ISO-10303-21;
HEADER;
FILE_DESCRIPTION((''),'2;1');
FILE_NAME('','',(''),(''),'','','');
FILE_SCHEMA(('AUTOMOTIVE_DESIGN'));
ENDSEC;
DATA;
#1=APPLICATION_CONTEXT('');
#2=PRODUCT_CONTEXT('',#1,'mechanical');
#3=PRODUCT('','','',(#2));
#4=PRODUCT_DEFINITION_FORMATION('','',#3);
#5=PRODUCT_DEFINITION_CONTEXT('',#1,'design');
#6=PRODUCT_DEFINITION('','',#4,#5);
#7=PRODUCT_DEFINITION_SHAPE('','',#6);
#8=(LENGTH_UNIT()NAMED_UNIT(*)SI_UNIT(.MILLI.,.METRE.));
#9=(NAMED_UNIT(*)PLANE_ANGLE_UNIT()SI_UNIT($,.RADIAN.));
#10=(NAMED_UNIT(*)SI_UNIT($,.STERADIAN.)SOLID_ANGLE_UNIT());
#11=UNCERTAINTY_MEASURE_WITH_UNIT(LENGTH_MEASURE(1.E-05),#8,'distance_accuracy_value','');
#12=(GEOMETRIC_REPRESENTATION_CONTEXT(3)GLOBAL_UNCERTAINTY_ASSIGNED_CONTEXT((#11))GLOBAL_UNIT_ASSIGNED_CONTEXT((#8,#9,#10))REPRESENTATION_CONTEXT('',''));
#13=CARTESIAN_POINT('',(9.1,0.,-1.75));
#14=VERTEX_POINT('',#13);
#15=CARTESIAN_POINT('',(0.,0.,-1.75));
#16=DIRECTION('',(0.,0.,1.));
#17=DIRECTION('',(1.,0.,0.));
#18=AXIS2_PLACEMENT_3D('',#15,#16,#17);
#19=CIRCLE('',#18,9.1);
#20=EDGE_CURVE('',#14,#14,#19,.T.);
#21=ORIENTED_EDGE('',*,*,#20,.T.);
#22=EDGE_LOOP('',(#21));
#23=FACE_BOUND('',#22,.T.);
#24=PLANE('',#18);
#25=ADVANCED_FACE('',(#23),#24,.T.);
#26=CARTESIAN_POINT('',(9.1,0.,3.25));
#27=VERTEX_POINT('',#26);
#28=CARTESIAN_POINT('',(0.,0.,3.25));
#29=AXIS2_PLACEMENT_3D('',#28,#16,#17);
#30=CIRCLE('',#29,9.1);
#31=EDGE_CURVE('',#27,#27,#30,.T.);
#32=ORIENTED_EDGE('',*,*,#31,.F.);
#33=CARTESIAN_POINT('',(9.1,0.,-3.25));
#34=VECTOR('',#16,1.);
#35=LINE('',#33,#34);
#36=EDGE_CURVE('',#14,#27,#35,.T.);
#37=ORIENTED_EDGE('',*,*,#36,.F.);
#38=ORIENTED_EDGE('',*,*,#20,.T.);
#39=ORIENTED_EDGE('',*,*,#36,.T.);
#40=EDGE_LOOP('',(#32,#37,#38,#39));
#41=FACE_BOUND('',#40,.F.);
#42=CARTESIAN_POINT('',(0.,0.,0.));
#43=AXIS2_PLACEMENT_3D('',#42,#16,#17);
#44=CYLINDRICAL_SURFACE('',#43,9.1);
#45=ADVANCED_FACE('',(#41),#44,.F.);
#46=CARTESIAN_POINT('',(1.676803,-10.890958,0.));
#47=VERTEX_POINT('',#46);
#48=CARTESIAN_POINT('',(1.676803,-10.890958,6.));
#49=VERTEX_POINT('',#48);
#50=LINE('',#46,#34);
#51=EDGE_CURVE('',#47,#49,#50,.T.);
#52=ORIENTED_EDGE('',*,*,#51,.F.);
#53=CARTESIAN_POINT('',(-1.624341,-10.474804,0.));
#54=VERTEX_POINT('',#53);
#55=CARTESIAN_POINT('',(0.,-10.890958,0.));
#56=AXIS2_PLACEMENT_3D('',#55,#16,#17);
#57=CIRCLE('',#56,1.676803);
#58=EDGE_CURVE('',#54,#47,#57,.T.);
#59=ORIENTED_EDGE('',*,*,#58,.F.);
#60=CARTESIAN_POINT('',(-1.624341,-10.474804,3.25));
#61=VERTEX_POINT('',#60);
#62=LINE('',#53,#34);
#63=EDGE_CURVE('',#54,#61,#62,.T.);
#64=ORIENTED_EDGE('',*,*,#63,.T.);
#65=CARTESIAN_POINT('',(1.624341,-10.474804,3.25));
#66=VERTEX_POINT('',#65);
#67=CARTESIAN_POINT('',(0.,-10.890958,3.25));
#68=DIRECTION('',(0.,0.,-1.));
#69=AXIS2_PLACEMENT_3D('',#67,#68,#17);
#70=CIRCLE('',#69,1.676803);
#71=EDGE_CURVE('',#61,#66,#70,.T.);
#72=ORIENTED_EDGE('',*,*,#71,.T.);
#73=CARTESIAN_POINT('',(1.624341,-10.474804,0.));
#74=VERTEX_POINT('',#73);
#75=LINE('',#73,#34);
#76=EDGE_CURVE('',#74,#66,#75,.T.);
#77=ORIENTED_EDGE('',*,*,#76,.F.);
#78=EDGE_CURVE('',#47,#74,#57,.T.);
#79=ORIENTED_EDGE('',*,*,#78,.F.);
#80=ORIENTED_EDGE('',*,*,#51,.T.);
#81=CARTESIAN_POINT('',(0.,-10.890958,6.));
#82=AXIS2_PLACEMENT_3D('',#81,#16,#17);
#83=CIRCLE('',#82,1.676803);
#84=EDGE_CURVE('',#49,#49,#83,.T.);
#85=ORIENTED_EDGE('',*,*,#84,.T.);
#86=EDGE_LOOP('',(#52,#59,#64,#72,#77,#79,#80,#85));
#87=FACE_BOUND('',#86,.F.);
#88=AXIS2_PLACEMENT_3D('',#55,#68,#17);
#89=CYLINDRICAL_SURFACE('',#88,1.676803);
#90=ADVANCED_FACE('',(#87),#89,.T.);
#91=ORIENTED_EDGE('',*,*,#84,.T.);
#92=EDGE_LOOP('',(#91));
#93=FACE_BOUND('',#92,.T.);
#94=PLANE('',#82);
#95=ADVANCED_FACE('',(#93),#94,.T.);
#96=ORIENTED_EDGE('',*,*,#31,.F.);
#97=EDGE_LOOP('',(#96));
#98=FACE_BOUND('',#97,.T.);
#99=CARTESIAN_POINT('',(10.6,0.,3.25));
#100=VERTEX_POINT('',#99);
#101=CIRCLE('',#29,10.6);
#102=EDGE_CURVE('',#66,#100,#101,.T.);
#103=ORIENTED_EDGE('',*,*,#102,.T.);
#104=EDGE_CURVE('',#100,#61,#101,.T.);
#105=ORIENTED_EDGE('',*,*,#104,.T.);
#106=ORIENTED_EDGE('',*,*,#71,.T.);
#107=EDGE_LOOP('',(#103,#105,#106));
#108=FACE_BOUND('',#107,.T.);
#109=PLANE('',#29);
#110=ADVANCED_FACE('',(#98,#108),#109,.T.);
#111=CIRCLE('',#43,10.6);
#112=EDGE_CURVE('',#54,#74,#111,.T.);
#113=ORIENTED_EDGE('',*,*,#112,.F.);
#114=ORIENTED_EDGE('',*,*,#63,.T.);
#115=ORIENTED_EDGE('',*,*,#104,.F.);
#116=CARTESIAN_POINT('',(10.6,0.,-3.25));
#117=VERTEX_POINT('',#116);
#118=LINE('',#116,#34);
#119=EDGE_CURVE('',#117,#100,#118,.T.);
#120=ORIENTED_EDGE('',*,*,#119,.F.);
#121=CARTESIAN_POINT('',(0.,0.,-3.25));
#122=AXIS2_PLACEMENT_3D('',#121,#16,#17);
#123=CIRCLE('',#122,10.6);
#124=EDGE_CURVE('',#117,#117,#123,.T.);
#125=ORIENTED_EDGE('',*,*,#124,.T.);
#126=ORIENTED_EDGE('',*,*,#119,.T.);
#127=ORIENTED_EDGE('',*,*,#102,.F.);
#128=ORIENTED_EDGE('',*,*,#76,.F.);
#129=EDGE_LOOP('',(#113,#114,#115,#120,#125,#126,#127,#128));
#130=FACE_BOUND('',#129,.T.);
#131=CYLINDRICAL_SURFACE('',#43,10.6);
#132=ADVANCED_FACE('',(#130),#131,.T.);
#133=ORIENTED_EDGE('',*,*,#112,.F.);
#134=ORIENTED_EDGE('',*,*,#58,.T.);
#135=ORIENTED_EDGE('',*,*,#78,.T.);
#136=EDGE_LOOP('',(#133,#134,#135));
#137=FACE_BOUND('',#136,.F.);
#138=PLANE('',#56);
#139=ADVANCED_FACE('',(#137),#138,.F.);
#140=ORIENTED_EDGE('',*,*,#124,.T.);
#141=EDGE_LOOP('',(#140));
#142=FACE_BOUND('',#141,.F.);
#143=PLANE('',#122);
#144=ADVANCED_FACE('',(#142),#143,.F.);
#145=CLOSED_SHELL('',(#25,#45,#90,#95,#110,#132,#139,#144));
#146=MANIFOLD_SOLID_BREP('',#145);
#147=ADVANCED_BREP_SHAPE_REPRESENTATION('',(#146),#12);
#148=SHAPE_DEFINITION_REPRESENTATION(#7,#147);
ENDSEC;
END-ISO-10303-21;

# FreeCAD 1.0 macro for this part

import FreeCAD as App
import Part
import Sketcher
from FreeCAD import Vector


def faces_at(feature, points):
    """Names of the faces that lie closest to the given points."""
    faces = feature.Shape.Faces
    near = lambda p: min(range(len(faces)), key=lambda i: faces[i].distToShape(Part.Vertex(*p))[0])
    return sorted({f"Face{near(p) + 1}" for p in points})

doc = App.newDocument("Part")
body = doc.addObject("PartDesign::Body", "Body")

# Sketch on XY plane
sketch1 = doc.addObject("Sketcher::SketchObject", "Sketch")
body.addObject(sketch1)
sketch1.AttachmentSupport = (doc.XY_Plane, [""])
sketch1.MapMode = "FlatFace"
sketch1.addGeometry(Part.Circle(Vector(0, 0, 0), Vector(0, 0, 1), 11), False)
sketch1.addConstraint([
    Sketcher.Constraint("Coincident", 0, 3, -1, 1),
    Sketcher.Constraint("Diameter", 0, 21.2),
])
pad1 = doc.addObject("PartDesign::Pad", "Pad")
body.addObject(pad1)
pad1.Profile = sketch1
pad1.Length = 6.5
pad1.Midplane = True
doc.recompute()

thickness = doc.addObject("PartDesign::Thickness", "Thickness")
body.addObject(thickness)
thickness.Base = (pad1, faces_at(pad1, [(0, 0, 3.25)]))
thickness.Value = 1.5
thickness.Reversed = True
thickness.Join = "Arc"

# Sketch on XY plane
sketch2 = doc.addObject("Sketcher::SketchObject", "Sketch001")
body.addObject(sketch2)
sketch2.AttachmentSupport = (doc.XY_Plane, [""])
sketch2.MapMode = "FlatFace"
sketch2.addGeometry(Part.Circle(Vector(0, -10.9, 0), Vector(0, 0, 1), 1.7), False)
sketch2.addConstraint([
    Sketcher.Constraint("PointOnObject", 0, 3, -2),
    Sketcher.Constraint("Diameter", 0, 3.353606),
    Sketcher.Constraint("DistanceY", 0, 3, -1, 1, 10.890958),
])
pad2 = doc.addObject("PartDesign::Pad", "Pad001")
body.addObject(pad2)
pad2.Profile = sketch2
pad2.Length = 6

doc.recompute()
